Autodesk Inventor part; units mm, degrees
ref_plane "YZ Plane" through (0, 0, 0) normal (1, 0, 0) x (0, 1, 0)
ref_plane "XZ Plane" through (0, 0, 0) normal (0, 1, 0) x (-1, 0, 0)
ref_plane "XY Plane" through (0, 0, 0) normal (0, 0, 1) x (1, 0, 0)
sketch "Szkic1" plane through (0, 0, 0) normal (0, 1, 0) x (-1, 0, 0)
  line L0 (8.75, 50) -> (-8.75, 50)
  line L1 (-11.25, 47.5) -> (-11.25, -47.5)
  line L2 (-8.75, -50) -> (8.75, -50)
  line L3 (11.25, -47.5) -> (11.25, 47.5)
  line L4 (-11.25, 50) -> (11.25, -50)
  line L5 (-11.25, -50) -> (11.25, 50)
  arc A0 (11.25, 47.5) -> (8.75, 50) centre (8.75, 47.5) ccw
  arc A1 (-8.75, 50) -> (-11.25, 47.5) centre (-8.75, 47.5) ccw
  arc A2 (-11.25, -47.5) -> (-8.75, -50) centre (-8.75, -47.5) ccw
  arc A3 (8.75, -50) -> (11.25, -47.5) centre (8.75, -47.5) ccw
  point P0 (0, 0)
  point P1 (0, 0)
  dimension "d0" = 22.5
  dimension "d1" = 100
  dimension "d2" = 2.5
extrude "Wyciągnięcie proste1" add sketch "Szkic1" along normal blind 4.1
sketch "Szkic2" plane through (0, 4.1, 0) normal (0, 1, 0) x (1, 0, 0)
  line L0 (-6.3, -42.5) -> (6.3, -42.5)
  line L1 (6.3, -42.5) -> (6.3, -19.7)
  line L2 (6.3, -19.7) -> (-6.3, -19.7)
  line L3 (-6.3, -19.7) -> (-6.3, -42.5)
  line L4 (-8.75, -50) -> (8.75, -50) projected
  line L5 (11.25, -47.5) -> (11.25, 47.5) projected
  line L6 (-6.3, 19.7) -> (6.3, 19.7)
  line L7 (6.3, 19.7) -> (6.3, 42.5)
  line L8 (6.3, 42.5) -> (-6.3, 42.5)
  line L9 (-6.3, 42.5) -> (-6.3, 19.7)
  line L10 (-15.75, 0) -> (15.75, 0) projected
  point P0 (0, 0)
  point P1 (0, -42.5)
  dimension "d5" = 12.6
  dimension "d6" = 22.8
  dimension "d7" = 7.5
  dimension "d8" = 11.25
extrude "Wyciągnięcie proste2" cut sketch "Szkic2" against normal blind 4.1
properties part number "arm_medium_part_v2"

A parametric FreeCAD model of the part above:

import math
import FreeCAD as App
import Part
import Sketcher

V = App.Vector


def add_polygon(sketch, points):
    """Adds a closed chain of lines whose ends are joined by coincident constraints."""
    first, n = sketch.GeometryCount, len(points)
    for a, b in zip(points, points[1:] + points[:1]):
        sketch.addGeometry(Part.LineSegment(App.Vector(*a, 0), App.Vector(*b, 0)), False)
    for i in range(n):
        sketch.addConstraint(Sketcher.Constraint("Coincident", first + i, 2, first + (i + 1) % n, 1))

doc = App.newDocument("Part")
params = doc.addObject("Spreadsheet::Sheet", "Params")
for row, (alias, value) in enumerate([
    ("sketch1_radius", "2.5 mm"),
    ("sketch1_height", "95 mm"),
    ("pad1_length", "4.1 mm"),
    ("sketch2_width", "12.6 mm"),
    ("sketch2_height", "22.8 mm"),
    ("pocket1_length", "4.1 mm"),
], start=1):
    params.set(f"A{row}", alias)
    params.set(f"B{row}", "=" + value)
    params.setAlias(f"B{row}", alias)

body = doc.addObject("PartDesign::Body", "Body")

# Sketch on XZ plane
sketch1 = doc.addObject("Sketcher::SketchObject", "Sketch")
body.addObject(sketch1)
sketch1.AttachmentSupport = (doc.XZ_Plane, [""])
sketch1.MapMode = "FlatFace"
sketch1.addGeometry(Part.LineSegment(V(-8.75, 50, 0), V(8.75, 50, 0)), False)
sketch1.addGeometry(Part.ArcOfCircle(Part.Circle(V(8.75, 47.5, 0), V(0, 0, 1), 2.5), math.radians(0), math.radians(90)), False)
sketch1.addGeometry(Part.LineSegment(V(11.25, 47.5, 0), V(11.25, -47.5, 0)), False)
sketch1.addGeometry(Part.ArcOfCircle(Part.Circle(V(8.75, -47.5, 0), V(0, 0, 1), 2.5), math.radians(-90), math.radians(0)), False)
sketch1.addGeometry(Part.LineSegment(V(8.75, -50, 0), V(-8.75, -50, 0)), False)
sketch1.addGeometry(Part.ArcOfCircle(Part.Circle(V(-8.75, -47.5, 0), V(0, 0, 1), 2.5), math.radians(180), math.radians(270)), False)
sketch1.addGeometry(Part.LineSegment(V(-11.25, -47.5, 0), V(-11.25, 47.5, 0)), False)
sketch1.addGeometry(Part.ArcOfCircle(Part.Circle(V(-8.75, 47.5, 0), V(0, 0, 1), 2.5), math.radians(90), math.radians(180)), False)
sketch1.addConstraint(Sketcher.Constraint("Tangent", 0, 2, 1, 2))
sketch1.addConstraint(Sketcher.Constraint("Tangent", 1, 1, 2, 1))
sketch1.addConstraint(Sketcher.Constraint("Tangent", 2, 2, 3, 2))
sketch1.addConstraint(Sketcher.Constraint("Tangent", 3, 1, 4, 1))
sketch1.addConstraint(Sketcher.Constraint("Tangent", 4, 2, 5, 2))
sketch1.addConstraint(Sketcher.Constraint("Tangent", 5, 1, 6, 1))
sketch1.addConstraint(Sketcher.Constraint("Tangent", 6, 2, 7, 2))
sketch1.addConstraint(Sketcher.Constraint("Tangent", 7, 1, 0, 1))
sketch1.addConstraint(Sketcher.Constraint("Horizontal", 0))
sketch1.addConstraint(Sketcher.Constraint("Vertical", 2))
sketch1.addConstraint(Sketcher.Constraint("Horizontal", 4))
sketch1.addConstraint(Sketcher.Constraint("Vertical", 6))
sketch1.addConstraint(Sketcher.Constraint("Equal", 1, 3))
sketch1.addConstraint(Sketcher.Constraint("Equal", 3, 5))
sketch1.addConstraint(Sketcher.Constraint("Equal", 5, 7))
sketch1.addConstraint(Sketcher.Constraint("Symmetric", 1, 3, 5, 3, -1, 1))
sketch1.addConstraint(Sketcher.Constraint("Radius", 1, 2.5))
sketch1.addConstraint(Sketcher.Constraint("DistanceX", 5, 1, 2, 2, 22.5))
sketch1.addConstraint(Sketcher.Constraint("DistanceY", 2, 2, 2, 1, 95.0))
sketch1.setExpression("Constraints[16]", "Params.sketch1_radius")
sketch1.setExpression("Constraints[18]", "Params.sketch1_height")
pad1 = doc.addObject("PartDesign::Pad", "Pad")
body.addObject(pad1)
pad1.Profile = sketch1
pad1.setExpression("Length", "Params.pad1_length")
pad1.Reversed = True

# Sketch on XZ plane
sketch2 = doc.addObject("Sketcher::SketchObject", "Sketch001")
body.addObject(sketch2)
sketch2.AttachmentSupport = (doc.XZ_Plane, [""])
sketch2.MapMode = "FlatFace"
sketch2.AttachmentOffset = App.Placement(V(0, 0, -4.1), App.Rotation())
add_polygon(sketch2, [(-6.3, 19.7), (-6.3, 42.5), (6.3, 42.5), (6.3, 19.7)])  # lines 0-3
add_polygon(sketch2, [(-6.3, -42.5), (-6.3, -19.7), (6.3, -19.7), (6.3, -42.5)])  # lines 4-7
sketch2.addConstraint(Sketcher.Constraint("Vertical", 0))
sketch2.addConstraint(Sketcher.Constraint("Horizontal", 1))
sketch2.addConstraint(Sketcher.Constraint("Vertical", 2))
sketch2.addConstraint(Sketcher.Constraint("Horizontal", 3))
sketch2.addConstraint(Sketcher.Constraint("Vertical", 4))
sketch2.addConstraint(Sketcher.Constraint("Horizontal", 5))
sketch2.addConstraint(Sketcher.Constraint("Vertical", 6))
sketch2.addConstraint(Sketcher.Constraint("Horizontal", 7))
sketch2.addConstraint(Sketcher.Constraint("Symmetric", 2, 2, 4, 2, -1, 1))
sketch2.addConstraint(Sketcher.Constraint("Symmetric", 0, 2, 6, 2, -1, 1))
sketch2.addConstraint(Sketcher.Constraint("Vertical", 3, 2, 4, 2))
sketch2.addConstraint(Sketcher.Constraint("DistanceX", 1, 1, 1, 2, 12.6))
sketch2.addConstraint(Sketcher.Constraint("DistanceY", 0, 1, 0, 2, 22.8))
sketch2.addConstraint(Sketcher.Constraint("DistanceY", 6, 2, 1, 2, 85.0))
sketch2.setExpression("Constraints[19]", "Params.sketch2_width")
sketch2.setExpression("Constraints[20]", "Params.sketch2_height")
pocket1 = doc.addObject("PartDesign::Pocket", "Pocket")
body.addObject(pocket1)
pocket1.Profile = sketch2
pocket1.setExpression("Length", "Params.pocket1_length")
pocket1.Reversed = True

doc.recompute()
